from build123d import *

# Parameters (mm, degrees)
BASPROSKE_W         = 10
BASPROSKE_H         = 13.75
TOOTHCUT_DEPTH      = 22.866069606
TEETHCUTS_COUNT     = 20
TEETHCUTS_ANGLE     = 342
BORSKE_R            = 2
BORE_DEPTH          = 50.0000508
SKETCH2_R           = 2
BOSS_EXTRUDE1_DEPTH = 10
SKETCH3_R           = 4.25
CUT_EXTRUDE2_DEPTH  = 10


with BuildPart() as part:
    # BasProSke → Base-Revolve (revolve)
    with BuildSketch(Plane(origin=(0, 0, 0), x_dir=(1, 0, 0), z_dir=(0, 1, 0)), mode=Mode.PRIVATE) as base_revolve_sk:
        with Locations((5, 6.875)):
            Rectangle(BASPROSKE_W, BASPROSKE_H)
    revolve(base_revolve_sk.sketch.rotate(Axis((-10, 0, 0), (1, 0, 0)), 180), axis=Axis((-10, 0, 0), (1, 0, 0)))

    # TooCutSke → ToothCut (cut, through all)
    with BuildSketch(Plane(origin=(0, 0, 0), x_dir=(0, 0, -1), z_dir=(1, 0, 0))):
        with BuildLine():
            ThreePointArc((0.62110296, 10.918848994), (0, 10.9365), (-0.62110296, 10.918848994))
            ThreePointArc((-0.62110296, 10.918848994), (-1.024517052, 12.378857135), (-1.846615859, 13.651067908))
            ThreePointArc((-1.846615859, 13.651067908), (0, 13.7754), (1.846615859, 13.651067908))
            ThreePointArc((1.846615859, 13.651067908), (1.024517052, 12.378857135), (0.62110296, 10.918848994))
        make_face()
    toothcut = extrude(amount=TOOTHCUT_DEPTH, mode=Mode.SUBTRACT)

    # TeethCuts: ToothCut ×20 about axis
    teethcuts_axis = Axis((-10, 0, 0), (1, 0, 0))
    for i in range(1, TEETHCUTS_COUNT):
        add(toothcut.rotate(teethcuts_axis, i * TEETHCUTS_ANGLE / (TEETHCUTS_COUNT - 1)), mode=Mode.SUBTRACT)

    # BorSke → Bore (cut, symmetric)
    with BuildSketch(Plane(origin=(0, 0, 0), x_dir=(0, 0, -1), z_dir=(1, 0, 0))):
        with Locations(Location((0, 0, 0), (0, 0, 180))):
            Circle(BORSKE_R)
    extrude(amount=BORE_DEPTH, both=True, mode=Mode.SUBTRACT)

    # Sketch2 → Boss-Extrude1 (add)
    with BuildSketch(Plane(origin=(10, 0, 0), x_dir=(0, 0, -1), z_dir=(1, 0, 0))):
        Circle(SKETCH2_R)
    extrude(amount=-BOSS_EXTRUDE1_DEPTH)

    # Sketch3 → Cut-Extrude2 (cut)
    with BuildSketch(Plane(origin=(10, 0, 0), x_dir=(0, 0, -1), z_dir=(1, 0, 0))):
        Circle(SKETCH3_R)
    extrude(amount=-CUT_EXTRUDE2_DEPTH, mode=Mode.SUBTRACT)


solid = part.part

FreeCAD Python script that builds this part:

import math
import FreeCAD as App
import Part
import Sketcher

doc = App.newDocument("Part")
body = doc.addObject("PartDesign::Body", "Body")

# Sketch on XZ plane
sketch1 = body.newObject("Sketcher::SketchObject", "Sketch")
sketch1.AttachmentSupport = (doc.getObject("XZ_Plane"), [""])
sketch1.MapMode = "FlatFace"
sketch1.addGeometry([
    Part.LineSegment(App.Vector(0, -13.75, 0), App.Vector(0, 0, 0)),
    Part.LineSegment(App.Vector(0, 0, 0), App.Vector(10, 0, 0)),
    Part.LineSegment(App.Vector(10, 0, 0), App.Vector(10, -13.75, 0)),
    Part.LineSegment(App.Vector(10, -13.75, 0), App.Vector(0, -13.75, 0)),
], False)
sketch1.addConstraint([
    Sketcher.Constraint("Coincident", 0, 2, 1, 1),
    Sketcher.Constraint("Coincident", 1, 2, 2, 1),
    Sketcher.Constraint("Coincident", 2, 2, 3, 1),
    Sketcher.Constraint("Coincident", 3, 2, 0, 1),
    Sketcher.Constraint("Vertical", 0),
    Sketcher.Constraint("Horizontal", 1),
    Sketcher.Constraint("Vertical", 2),
    Sketcher.Constraint("Horizontal", 3),
    Sketcher.Constraint("Coincident", 0, 2, -1, 1),
    Sketcher.Constraint("DistanceX", 1, 1, 1, 2, 10.0),
    Sketcher.Constraint("DistanceY", 0, 1, 0, 2, 13.75),
])
revolution = body.newObject("PartDesign::Revolution", "Revolution")
revolution.Profile = sketch1
revolution.ReferenceAxis = (sketch1, ["H_Axis"])
revolution.Angle = 360

# Sketch on YZ plane
sketch2 = body.newObject("Sketcher::SketchObject", "Sketch001")
sketch2.AttachmentSupport = (doc.getObject("YZ_Plane"), [""])
sketch2.MapMode = "FlatFace"
sketch2.addGeometry([
    Part.ArcOfCircle(Part.Circle(App.Vector(0, 0, 0), App.Vector(0, 0, 1), 10.9365), math.radians(-3.255679), math.radians(3.255679)),
    Part.ArcOfCircle(Part.Circle(App.Vector(10.33257, -5.586612, 0), App.Vector(0, 0, 1), 5), math.radians(48.417354), math.radians(83.266241)),
    Part.ArcOfCircle(Part.Circle(App.Vector(0, 0, 0), App.Vector(0, 0, 1), 13.7754), math.radians(-7.703788), math.radians(7.703788)),
    Part.ArcOfCircle(Part.Circle(App.Vector(10.33257, 5.586612, 0), App.Vector(0, 0, 1), 5), math.radians(-83.266241), math.radians(-48.417354)),
], False)
sketch2.addConstraint([
    Sketcher.Constraint("Coincident", 0, 1, 1, 2),
    Sketcher.Constraint("Coincident", 1, 1, 2, 1),
    Sketcher.Constraint("Coincident", 2, 2, 3, 2),
    Sketcher.Constraint("Coincident", 3, 1, 0, 2),
    Sketcher.Constraint("Coincident", 0, 3, -1, 1),
    Sketcher.Constraint("Coincident", 2, 3, -1, 1),
    Sketcher.Constraint("Equal", 1, 3),
    Sketcher.Constraint("Symmetric", 1, 3, 3, 3, -1),
    Sketcher.Constraint("Radius", 1, 5.0),
    Sketcher.Constraint("Radius", 0, 10.9365),
    Sketcher.Constraint("Radius", 2, 13.7754),
    Sketcher.Constraint("DistanceX", 1, 3, 1, 1, 3.318498),
    Sketcher.Constraint("DistanceX", -1, 1, 1, 3, 10.33257),
])
pocket1 = body.newObject("PartDesign::Pocket", "Pocket")
pocket1.Profile = sketch2
pocket1.Type = "ThroughAll"
pocket1.Reversed = True
doc.recompute()

polarpattern = body.newObject("PartDesign::PolarPattern", "PolarPattern")
polarpattern.Originals = [pocket1]
polarpattern.Axis = (doc.getObject("X_Axis"), [""])
polarpattern.Angle = 360
polarpattern.Occurrences = 20
body.Tip = polarpattern

# Sketch on YZ plane
sketch3 = body.newObject("Sketcher::SketchObject", "Sketch002")
sketch3.AttachmentSupport = (doc.getObject("YZ_Plane"), [""])
sketch3.MapMode = "FlatFace"
sketch3.addGeometry(Part.Circle(App.Vector(0, 0, 0), App.Vector(0, 0, 1), 2), False)
sketch3.addConstraint([
    Sketcher.Constraint("Coincident", 0, 3, -1, 1),
    Sketcher.Constraint("Diameter", 0, 4.0),
])
pocket2 = body.newObject("PartDesign::Pocket", "Pocket001")
pocket2.Profile = sketch3
pocket2.Length = 100.000102
pocket2.Midplane = True

# Sketch on YZ plane
sketch4 = body.newObject("Sketcher::SketchObject", "Sketch003")
sketch4.AttachmentSupport = (doc.getObject("YZ_Plane"), [""])
sketch4.MapMode = "FlatFace"
sketch4.AttachmentOffset = App.Placement(App.Vector(0, 0, 10), App.Rotation())
sketch4.addGeometry(Part.Circle(App.Vector(0, 0, 0), App.Vector(0, 0, 1), 2), False)
sketch4.addConstraint([
    Sketcher.Constraint("Coincident", 0, 3, -1, 1),
    Sketcher.Constraint("Diameter", 0, 4.0),
])
pad1 = body.newObject("PartDesign::Pad", "Pad")
pad1.Profile = sketch4
pad1.Length = 10
pad1.Reversed = True

# Sketch on YZ plane
sketch5 = body.newObject("Sketcher::SketchObject", "Sketch004")
sketch5.AttachmentSupport = (doc.getObject("YZ_Plane"), [""])
sketch5.MapMode = "FlatFace"
sketch5.AttachmentOffset = App.Placement(App.Vector(0, 0, 10), App.Rotation())
sketch5.addGeometry(Part.Circle(App.Vector(0, 0, 0), App.Vector(0, 0, 1), 4.25), False)
sketch5.addConstraint([
    Sketcher.Constraint("Coincident", 0, 3, -1, 1),
    Sketcher.Constraint("Diameter", 0, 8.5),
])
pocket3 = body.newObject("PartDesign::Pocket", "Pocket002")
pocket3.Profile = sketch5
pocket3.Length = 10

doc.recompute()
